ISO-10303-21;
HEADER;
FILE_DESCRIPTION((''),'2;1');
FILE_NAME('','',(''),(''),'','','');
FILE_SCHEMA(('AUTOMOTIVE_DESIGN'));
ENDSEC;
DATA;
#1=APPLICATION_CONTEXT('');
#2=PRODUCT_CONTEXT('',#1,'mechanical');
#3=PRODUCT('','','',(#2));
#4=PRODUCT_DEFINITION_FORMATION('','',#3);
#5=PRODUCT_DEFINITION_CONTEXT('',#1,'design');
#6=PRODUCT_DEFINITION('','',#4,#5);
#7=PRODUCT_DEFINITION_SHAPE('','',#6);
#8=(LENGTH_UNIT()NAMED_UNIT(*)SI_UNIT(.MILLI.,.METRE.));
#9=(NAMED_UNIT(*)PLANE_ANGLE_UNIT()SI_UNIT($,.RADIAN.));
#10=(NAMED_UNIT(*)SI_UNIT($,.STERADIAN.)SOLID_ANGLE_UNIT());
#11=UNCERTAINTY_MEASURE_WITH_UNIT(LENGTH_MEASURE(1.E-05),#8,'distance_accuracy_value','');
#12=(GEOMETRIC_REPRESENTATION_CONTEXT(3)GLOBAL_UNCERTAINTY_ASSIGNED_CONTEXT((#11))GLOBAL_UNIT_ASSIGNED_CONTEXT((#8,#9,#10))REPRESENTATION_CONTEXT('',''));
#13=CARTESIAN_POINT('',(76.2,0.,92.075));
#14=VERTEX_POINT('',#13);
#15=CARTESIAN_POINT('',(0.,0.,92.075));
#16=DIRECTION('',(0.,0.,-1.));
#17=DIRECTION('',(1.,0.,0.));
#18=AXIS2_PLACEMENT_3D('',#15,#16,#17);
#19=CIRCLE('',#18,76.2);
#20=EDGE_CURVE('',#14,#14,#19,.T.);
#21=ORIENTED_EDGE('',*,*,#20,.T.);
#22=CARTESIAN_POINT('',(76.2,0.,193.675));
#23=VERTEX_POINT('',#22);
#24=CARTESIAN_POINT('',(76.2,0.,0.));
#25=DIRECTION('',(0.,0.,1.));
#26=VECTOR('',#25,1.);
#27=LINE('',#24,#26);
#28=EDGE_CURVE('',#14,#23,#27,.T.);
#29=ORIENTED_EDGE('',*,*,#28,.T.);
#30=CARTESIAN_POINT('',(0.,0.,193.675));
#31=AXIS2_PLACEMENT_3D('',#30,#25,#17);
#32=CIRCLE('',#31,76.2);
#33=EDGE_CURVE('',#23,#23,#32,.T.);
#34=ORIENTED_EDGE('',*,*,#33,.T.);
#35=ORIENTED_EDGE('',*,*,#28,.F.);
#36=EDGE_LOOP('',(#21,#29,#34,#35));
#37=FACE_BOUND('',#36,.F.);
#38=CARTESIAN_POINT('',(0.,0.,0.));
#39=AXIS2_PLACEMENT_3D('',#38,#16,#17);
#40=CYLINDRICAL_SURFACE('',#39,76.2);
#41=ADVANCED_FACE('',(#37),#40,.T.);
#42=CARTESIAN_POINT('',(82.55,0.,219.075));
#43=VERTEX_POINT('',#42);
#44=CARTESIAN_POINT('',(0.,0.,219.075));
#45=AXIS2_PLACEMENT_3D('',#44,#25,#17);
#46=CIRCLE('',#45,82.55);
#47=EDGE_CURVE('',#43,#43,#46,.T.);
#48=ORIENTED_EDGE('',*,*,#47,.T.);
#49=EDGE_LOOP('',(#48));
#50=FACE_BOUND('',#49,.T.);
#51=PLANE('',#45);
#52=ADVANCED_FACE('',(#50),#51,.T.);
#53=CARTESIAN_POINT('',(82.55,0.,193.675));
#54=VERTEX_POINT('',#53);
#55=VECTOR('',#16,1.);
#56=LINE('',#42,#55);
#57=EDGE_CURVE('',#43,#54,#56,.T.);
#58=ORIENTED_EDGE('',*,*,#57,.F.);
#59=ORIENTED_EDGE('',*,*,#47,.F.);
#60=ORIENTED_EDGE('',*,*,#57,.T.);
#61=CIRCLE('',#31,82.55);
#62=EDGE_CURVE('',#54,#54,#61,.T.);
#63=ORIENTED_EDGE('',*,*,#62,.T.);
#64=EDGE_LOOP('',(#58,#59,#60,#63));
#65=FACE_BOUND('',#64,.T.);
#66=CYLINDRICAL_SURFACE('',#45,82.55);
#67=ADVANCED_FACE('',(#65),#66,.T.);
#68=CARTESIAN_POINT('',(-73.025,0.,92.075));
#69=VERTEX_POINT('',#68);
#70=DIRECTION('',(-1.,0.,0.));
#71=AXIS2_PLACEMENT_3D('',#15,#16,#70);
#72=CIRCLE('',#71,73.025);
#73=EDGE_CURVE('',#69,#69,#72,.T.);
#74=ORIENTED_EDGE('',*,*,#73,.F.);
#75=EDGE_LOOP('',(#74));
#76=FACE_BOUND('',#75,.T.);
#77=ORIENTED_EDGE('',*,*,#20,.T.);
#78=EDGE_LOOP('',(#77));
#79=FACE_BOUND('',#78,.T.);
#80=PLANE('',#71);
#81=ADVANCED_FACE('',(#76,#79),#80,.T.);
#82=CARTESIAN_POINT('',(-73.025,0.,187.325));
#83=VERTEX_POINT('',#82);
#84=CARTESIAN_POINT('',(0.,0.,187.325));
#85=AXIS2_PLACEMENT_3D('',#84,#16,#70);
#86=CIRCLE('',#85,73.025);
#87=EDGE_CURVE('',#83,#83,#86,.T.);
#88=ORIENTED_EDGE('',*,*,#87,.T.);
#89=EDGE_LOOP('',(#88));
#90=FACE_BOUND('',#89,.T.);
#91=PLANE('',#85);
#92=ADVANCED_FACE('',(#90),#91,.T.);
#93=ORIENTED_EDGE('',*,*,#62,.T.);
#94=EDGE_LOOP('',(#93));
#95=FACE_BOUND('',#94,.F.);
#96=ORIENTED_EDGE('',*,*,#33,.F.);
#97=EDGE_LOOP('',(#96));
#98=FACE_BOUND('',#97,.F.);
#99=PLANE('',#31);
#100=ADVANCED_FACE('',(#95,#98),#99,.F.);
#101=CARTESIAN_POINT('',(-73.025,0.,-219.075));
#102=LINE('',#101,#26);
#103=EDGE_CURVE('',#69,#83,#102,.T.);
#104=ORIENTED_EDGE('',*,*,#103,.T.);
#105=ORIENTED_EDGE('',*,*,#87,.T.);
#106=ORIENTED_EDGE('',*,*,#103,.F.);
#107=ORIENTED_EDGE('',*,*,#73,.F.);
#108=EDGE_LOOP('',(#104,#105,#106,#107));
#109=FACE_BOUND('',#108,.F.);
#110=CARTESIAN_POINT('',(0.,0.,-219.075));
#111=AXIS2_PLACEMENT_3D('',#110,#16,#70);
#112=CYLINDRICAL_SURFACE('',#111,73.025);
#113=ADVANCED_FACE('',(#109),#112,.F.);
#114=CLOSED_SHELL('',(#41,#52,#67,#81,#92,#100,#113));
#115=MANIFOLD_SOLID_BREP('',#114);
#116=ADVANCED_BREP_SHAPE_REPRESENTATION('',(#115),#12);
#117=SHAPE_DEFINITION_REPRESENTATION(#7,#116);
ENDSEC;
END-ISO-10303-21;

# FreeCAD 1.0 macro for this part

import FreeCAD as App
import Part
import Sketcher
Q = App.Units.Quantity

doc = App.newDocument("Part")
body = doc.addObject("PartDesign::Body", "Body")

sketch1 = doc.addObject("Sketcher::SketchObject", "Sketch")
body.addObject(sketch1)
sketch1.AttachmentSupport = (doc.XY_Plane, [""])
sketch1.MapMode = "FlatFace"
sketch1.addGeometry(Part.Circle(App.Vector(0, 0, 0), App.Vector(0, 0, 1), 76), False)
sketch1.addConstraint(Sketcher.Constraint("Coincident", 0, 3, -1, 1))
sketch1.addConstraint(Sketcher.Constraint("Diameter", 0, Q("6 in")))
pad1 = doc.addObject("PartDesign::Pad", "Pad")
body.addObject(pad1)
pad1.Profile = sketch1
pad1.Length = Q("17.25 in")
pad1.Midplane = True

sketch2 = doc.addObject("Sketcher::SketchObject", "Sketch001")
body.addObject(sketch2)
sketch2.AttachmentSupport = (doc.XY_Plane, [""])
sketch2.MapMode = "FlatFace"
sketch2.AttachmentOffset = App.Placement(App.Vector(0, 0, -8.625 * 25.4), App.Rotation())
sketch2.addGeometry(Part.Circle(App.Vector(0, 0, 0), App.Vector(0, 0, 1), 73), False)
sketch2.addConstraint(Sketcher.Constraint("Coincident", 0, 3, -1, 1))
sketch2.addConstraint(Sketcher.Constraint("Diameter", 0, Q("5.75 in")))
pocket1 = doc.addObject("PartDesign::Pocket", "Pocket")
body.addObject(pocket1)
pocket1.Profile = sketch2
pocket1.Length = Q("16 in")
pocket1.Reversed = True

sketch3 = doc.addObject("Sketcher::SketchObject", "Sketch002")
body.addObject(sketch3)
sketch3.AttachmentSupport = (doc.XY_Plane, [""])
sketch3.MapMode = "FlatFace"
sketch3.AttachmentOffset = App.Placement(App.Vector(0, 0, 8.625 * 25.4), App.Rotation())
sketch3.addGeometry(Part.Circle(App.Vector(0, 0, 0), App.Vector(0, 0, 1), 83), False)
sketch3.addGeometry(Part.Circle(App.Vector(0, 0, 0), App.Vector(0, 0, 1), 76), False)
sketch3.addConstraint(Sketcher.Constraint("Coincident", 0, 3, -1, 1))
sketch3.addConstraint(Sketcher.Constraint("Coincident", 1, 3, -1, 1))
sketch3.addConstraint(Sketcher.Constraint("Diameter", 0, Q("6.5 in")))
sketch3.addConstraint(Sketcher.Constraint("Diameter", 1, Q("6 in")))
pad2 = doc.addObject("PartDesign::Pad", "Pad001")
body.addObject(pad2)
pad2.Profile = sketch3
pad2.Length = Q("1 in")
pad2.Reversed = True

sketch4 = doc.addObject("Sketcher::SketchObject", "Sketch003")
body.addObject(sketch4)
sketch4.AttachmentSupport = (doc.XY_Plane, [""])
sketch4.MapMode = "FlatFace"
sketch4.AttachmentOffset = App.Placement(App.Vector(0, 0, -8.625 * 25.4), App.Rotation())
sketch4.addGeometry(Part.Circle(App.Vector(0, 0, 0), App.Vector(0, 0, 1), 83), False)
sketch4.addGeometry(Part.Circle(App.Vector(0, 0, 0), App.Vector(0, 0, 1), 76), False)
sketch4.addConstraint(Sketcher.Constraint("Coincident", 0, 3, -1, 1))
sketch4.addConstraint(Sketcher.Constraint("Coincident", 1, 3, -1, 1))
sketch4.addConstraint(Sketcher.Constraint("Diameter", 1, Q("6 in")))
sketch4.addConstraint(Sketcher.Constraint("Diameter", 0, Q("6.5 in")))
pad3 = doc.addObject("PartDesign::Pad", "Pad002")
body.addObject(pad3)
pad3.Profile = sketch4
pad3.Length = Q("1 in")

sketch5 = doc.addObject("Sketcher::SketchObject", "Sketch004")
body.addObject(sketch5)
sketch5.AttachmentSupport = (doc.XY_Plane, [""])
sketch5.MapMode = "FlatFace"
sketch5.AttachmentOffset = App.Placement(App.Vector(0, 0, -8.625 * 25.4), App.Rotation())
sketch5.addGeometry(Part.Circle(App.Vector(0, 0, 0), App.Vector(0, 0, 1), 83), False)
sketch5.addGeometry(Part.Circle(App.Vector(0, 0, 0), App.Vector(0, 0, 1), 73), False)
sketch5.addConstraint(Sketcher.Constraint("Coincident", 0, 3, -1, 1))
sketch5.addConstraint(Sketcher.Constraint("Coincident", 1, 3, -1, 1))
sketch5.addConstraint(Sketcher.Constraint("Diameter", 0, Q("6.5 in")))
sketch5.addConstraint(Sketcher.Constraint("Diameter", 1, Q("5.75 in")))
pocket2 = doc.addObject("PartDesign::Pocket", "Pocket001")
body.addObject(pocket2)
pocket2.Profile = sketch5
pocket2.Length = Q("12.25 in")
pocket2.Reversed = True

doc.recompute()
